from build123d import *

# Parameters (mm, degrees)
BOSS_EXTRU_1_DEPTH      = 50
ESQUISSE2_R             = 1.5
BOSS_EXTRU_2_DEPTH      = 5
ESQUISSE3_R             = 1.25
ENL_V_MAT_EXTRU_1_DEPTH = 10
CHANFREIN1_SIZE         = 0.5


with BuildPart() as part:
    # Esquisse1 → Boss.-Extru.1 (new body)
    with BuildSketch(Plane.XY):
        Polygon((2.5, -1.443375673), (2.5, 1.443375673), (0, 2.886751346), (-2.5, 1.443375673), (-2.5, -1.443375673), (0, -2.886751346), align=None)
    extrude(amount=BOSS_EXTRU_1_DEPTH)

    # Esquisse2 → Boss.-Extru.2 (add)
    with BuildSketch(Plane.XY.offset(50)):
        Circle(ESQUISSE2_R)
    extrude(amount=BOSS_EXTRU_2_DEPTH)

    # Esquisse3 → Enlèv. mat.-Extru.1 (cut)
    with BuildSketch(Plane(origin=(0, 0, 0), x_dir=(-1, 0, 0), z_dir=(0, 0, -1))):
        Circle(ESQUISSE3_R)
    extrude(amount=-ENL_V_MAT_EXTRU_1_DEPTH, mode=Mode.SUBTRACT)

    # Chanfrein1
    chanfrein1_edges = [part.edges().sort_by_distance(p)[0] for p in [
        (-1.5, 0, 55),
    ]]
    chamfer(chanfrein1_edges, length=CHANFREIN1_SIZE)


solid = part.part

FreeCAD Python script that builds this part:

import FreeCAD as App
import Part
import Sketcher

V = App.Vector
Q = App.Units.Quantity


def edges_at(feature, points):
    """Names of the edges that pass closest to the given points."""
    edges = feature.Shape.Edges
    near = lambda p: min(range(len(edges)), key=lambda i: edges[i].distToShape(Part.Vertex(*p))[0])
    return sorted({f"Edge{near(p) + 1}" for p in points})


def add_polygon(sketch, points):
    """Adds a closed chain of lines whose ends are joined by coincident constraints."""
    first, n = sketch.GeometryCount, len(points)
    for a, b in zip(points, points[1:] + points[:1]):
        sketch.addGeometry(Part.LineSegment(App.Vector(*a, 0), App.Vector(*b, 0)), False)
    for i in range(n):
        sketch.addConstraint(Sketcher.Constraint("Coincident", first + i, 2, first + (i + 1) % n, 1))

doc = App.newDocument("Part")
body = doc.addObject("PartDesign::Body", "Body")

# Sketch on XY plane
sketch1 = body.newObject("Sketcher::SketchObject", "Sketch")
sketch1.AttachmentSupport = (doc.getObject("XY_Plane"), [""])
sketch1.MapMode = "FlatFace"
add_polygon(sketch1, [(2.5, -1.4), (2.5, 1.4), (0, 2.9), (-2.5, 1.4), (-2.5, -1.4), (0, -2.9)])  # lines 0-5
sketch1.addConstraint([
    Sketcher.Constraint("Vertical", 0),
    Sketcher.Constraint("Vertical", 3),
    Sketcher.Constraint("Symmetric", 0, 2, 3, 2, -1, 1),
    Sketcher.Constraint("Symmetric", 1, 2, 4, 2, -1, 1),
    Sketcher.Constraint("PointOnObject", 1, 2, -2),
    Sketcher.Constraint("Parallel", 2, 5),
    Sketcher.Constraint("Horizontal", 0, 2, 2, 2),
    Sketcher.Constraint("Angle", 1, Q("150 deg")),
    Sketcher.Constraint("DistanceX", 2, 2, 0, 2, Q("5 mm")),
    Sketcher.Constraint("DistanceY", 0, 1, 0, 2, Q("2.886751 mm")),
])
pad1 = body.newObject("PartDesign::Pad", "Pad")
pad1.Profile = sketch1
pad1.Length = 50

# Sketch on XY plane
sketch2 = body.newObject("Sketcher::SketchObject", "Sketch001")
sketch2.AttachmentSupport = (doc.getObject("XY_Plane"), [""])
sketch2.MapMode = "FlatFace"
sketch2.AttachmentOffset = App.Placement(V(0, 0, 50), App.Rotation())
sketch2.addGeometry(Part.Circle(V(0, 0, 0), V(0, 0, 1), 1.5), False)
sketch2.addConstraint([
    Sketcher.Constraint("Coincident", 0, 3, -1, 1),
    Sketcher.Constraint("Diameter", 0, Q("3 mm")),
])
pad2 = body.newObject("PartDesign::Pad", "Pad001")
pad2.Profile = sketch2
pad2.Length = 5

# Sketch on XY plane
sketch3 = body.newObject("Sketcher::SketchObject", "Sketch002")
sketch3.AttachmentSupport = (doc.getObject("XY_Plane"), [""])
sketch3.MapMode = "FlatFace"
sketch3.addGeometry(Part.Circle(V(0, 0, 0), V(0, 0, 1), 1.2), False)
sketch3.addConstraint([
    Sketcher.Constraint("Coincident", 0, 3, -1, 1),
    Sketcher.Constraint("Diameter", 0, Q("2.5 mm")),
])
pocket1 = body.newObject("PartDesign::Pocket", "Pocket")
pocket1.Profile = sketch3
pocket1.Length = 10
pocket1.Reversed = True
doc.recompute()

chamfer = body.newObject("PartDesign::Chamfer", "Chamfer")
chamfer.Base = (pocket1, edges_at(pocket1, [(-1.5, 0, 55)]))
chamfer.Size = 0.5

doc.recompute()
